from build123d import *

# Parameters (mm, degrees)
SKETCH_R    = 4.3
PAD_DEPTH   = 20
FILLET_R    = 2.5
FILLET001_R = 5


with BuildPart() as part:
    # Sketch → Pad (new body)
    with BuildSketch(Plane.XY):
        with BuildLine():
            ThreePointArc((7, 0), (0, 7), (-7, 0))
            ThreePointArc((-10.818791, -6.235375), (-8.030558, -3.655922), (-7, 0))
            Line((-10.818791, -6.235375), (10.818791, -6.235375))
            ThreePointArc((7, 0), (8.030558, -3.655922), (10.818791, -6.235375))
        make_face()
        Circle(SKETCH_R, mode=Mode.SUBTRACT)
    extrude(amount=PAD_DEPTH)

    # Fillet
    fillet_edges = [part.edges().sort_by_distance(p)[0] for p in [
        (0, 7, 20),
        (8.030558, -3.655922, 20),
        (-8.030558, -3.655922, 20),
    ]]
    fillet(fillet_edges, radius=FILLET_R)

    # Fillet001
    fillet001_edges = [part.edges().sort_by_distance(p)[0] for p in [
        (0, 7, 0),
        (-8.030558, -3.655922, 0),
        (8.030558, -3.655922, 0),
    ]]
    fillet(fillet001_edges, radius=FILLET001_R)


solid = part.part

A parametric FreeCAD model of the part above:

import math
import FreeCAD as App
import Part
import Sketcher


def edges_at(feature, points):
    """Names of the edges that pass closest to the given points."""
    edges = feature.Shape.Edges
    near = lambda p: min(range(len(edges)), key=lambda i: edges[i].distToShape(Part.Vertex(*p))[0])
    return sorted({f"Edge{near(p) + 1}" for p in points})

doc = App.newDocument("Part")
params = doc.addObject("Spreadsheet::Sheet", "Params")
for row, (alias, value) in enumerate([
    ("sketch1_radius", "7 mm"),
    ("sketch1_diameter", "8.6 mm"),
    ("pad1_length", "20 mm"),
    ("fillet_radius", "2.5 mm"),
    ("fillet2_radius", "5 mm"),
], start=1):
    params.set(f"A{row}", alias)
    params.set(f"B{row}", "=" + value)
    params.setAlias(f"B{row}", alias)

body = doc.addObject("PartDesign::Body", "Body")

# Sketch on XY plane
sketch1 = doc.addObject("Sketcher::SketchObject", "Sketch")
body.addObject(sketch1)
sketch1.AttachmentSupport = (doc.XY_Plane, [""])
sketch1.MapMode = "FlatFace"
sketch1.addGeometry(Part.ArcOfCircle(Part.Circle(App.Vector(0, 0, 0), App.Vector(0, 0, 1), 7), math.radians(0), math.radians(180)), False)
sketch1.addGeometry(Part.ArcOfCircle(Part.Circle(App.Vector(-14, 0, 0), App.Vector(0, 0, 1), 7), math.radians(-63), math.radians(0)), False)
sketch1.addGeometry(Part.LineSegment(App.Vector(-10.8, -6.2, 0), App.Vector(10.8, -6.2, 0)), False)
sketch1.addGeometry(Part.ArcOfCircle(Part.Circle(App.Vector(14, 0, 0), App.Vector(0, 0, 1), 7), math.radians(180), math.radians(243)), False)
sketch1.addGeometry(Part.Circle(App.Vector(0, 0, 0), App.Vector(0, 0, 1), 4.3), False)
sketch1.addConstraint(Sketcher.Constraint("Tangent", 0, 2, 1, 2))
sketch1.addConstraint(Sketcher.Constraint("Coincident", 1, 1, 2, 1))
sketch1.addConstraint(Sketcher.Constraint("Coincident", 2, 2, 3, 2))
sketch1.addConstraint(Sketcher.Constraint("Tangent", 3, 1, 0, 1))
sketch1.addConstraint(Sketcher.Constraint("Horizontal", 2))
sketch1.addConstraint(Sketcher.Constraint("Coincident", 0, 3, -1, 1))
sketch1.addConstraint(Sketcher.Constraint("Coincident", 4, 3, -1, 1))
sketch1.addConstraint(Sketcher.Constraint("Equal", 1, 3))
sketch1.addConstraint(Sketcher.Constraint("PointOnObject", 1, 3, -1))
sketch1.addConstraint(Sketcher.Constraint("PointOnObject", 3, 3, -1))
sketch1.addConstraint(Sketcher.Constraint("Radius", 0, 7.0))
sketch1.addConstraint(Sketcher.Constraint("Diameter", 4, 8.6))
sketch1.addConstraint(Sketcher.Constraint("Radius", 1, 6.999997))
sketch1.addConstraint(Sketcher.Constraint("DistanceX", 2, 1, 2, 2, 21.637582))
sketch1.setExpression("Constraints[10]", "Params.sketch1_radius")
sketch1.setExpression("Constraints[11]", "Params.sketch1_diameter")
pad1 = doc.addObject("PartDesign::Pad", "Pad")
body.addObject(pad1)
pad1.Profile = sketch1
pad1.setExpression("Length", "Params.pad1_length")
doc.recompute()

fillet = doc.addObject("PartDesign::Fillet", "Fillet")
body.addObject(fillet)
fillet.Base = (pad1, edges_at(pad1, [(0, 7, 20), (8.031, -3.656, 20), (-8.031, -3.656, 20)]))
fillet.setExpression("Radius", "Params.fillet_radius")
doc.recompute()

fillet2 = doc.addObject("PartDesign::Fillet", "Fillet001")
body.addObject(fillet2)
fillet2.Base = (fillet, edges_at(fillet, [(0, 7, 0), (-8.031, -3.656, 0), (8.031, -3.656, 0)]))
fillet2.setExpression("Radius", "Params.fillet2_radius")

doc.recompute()
